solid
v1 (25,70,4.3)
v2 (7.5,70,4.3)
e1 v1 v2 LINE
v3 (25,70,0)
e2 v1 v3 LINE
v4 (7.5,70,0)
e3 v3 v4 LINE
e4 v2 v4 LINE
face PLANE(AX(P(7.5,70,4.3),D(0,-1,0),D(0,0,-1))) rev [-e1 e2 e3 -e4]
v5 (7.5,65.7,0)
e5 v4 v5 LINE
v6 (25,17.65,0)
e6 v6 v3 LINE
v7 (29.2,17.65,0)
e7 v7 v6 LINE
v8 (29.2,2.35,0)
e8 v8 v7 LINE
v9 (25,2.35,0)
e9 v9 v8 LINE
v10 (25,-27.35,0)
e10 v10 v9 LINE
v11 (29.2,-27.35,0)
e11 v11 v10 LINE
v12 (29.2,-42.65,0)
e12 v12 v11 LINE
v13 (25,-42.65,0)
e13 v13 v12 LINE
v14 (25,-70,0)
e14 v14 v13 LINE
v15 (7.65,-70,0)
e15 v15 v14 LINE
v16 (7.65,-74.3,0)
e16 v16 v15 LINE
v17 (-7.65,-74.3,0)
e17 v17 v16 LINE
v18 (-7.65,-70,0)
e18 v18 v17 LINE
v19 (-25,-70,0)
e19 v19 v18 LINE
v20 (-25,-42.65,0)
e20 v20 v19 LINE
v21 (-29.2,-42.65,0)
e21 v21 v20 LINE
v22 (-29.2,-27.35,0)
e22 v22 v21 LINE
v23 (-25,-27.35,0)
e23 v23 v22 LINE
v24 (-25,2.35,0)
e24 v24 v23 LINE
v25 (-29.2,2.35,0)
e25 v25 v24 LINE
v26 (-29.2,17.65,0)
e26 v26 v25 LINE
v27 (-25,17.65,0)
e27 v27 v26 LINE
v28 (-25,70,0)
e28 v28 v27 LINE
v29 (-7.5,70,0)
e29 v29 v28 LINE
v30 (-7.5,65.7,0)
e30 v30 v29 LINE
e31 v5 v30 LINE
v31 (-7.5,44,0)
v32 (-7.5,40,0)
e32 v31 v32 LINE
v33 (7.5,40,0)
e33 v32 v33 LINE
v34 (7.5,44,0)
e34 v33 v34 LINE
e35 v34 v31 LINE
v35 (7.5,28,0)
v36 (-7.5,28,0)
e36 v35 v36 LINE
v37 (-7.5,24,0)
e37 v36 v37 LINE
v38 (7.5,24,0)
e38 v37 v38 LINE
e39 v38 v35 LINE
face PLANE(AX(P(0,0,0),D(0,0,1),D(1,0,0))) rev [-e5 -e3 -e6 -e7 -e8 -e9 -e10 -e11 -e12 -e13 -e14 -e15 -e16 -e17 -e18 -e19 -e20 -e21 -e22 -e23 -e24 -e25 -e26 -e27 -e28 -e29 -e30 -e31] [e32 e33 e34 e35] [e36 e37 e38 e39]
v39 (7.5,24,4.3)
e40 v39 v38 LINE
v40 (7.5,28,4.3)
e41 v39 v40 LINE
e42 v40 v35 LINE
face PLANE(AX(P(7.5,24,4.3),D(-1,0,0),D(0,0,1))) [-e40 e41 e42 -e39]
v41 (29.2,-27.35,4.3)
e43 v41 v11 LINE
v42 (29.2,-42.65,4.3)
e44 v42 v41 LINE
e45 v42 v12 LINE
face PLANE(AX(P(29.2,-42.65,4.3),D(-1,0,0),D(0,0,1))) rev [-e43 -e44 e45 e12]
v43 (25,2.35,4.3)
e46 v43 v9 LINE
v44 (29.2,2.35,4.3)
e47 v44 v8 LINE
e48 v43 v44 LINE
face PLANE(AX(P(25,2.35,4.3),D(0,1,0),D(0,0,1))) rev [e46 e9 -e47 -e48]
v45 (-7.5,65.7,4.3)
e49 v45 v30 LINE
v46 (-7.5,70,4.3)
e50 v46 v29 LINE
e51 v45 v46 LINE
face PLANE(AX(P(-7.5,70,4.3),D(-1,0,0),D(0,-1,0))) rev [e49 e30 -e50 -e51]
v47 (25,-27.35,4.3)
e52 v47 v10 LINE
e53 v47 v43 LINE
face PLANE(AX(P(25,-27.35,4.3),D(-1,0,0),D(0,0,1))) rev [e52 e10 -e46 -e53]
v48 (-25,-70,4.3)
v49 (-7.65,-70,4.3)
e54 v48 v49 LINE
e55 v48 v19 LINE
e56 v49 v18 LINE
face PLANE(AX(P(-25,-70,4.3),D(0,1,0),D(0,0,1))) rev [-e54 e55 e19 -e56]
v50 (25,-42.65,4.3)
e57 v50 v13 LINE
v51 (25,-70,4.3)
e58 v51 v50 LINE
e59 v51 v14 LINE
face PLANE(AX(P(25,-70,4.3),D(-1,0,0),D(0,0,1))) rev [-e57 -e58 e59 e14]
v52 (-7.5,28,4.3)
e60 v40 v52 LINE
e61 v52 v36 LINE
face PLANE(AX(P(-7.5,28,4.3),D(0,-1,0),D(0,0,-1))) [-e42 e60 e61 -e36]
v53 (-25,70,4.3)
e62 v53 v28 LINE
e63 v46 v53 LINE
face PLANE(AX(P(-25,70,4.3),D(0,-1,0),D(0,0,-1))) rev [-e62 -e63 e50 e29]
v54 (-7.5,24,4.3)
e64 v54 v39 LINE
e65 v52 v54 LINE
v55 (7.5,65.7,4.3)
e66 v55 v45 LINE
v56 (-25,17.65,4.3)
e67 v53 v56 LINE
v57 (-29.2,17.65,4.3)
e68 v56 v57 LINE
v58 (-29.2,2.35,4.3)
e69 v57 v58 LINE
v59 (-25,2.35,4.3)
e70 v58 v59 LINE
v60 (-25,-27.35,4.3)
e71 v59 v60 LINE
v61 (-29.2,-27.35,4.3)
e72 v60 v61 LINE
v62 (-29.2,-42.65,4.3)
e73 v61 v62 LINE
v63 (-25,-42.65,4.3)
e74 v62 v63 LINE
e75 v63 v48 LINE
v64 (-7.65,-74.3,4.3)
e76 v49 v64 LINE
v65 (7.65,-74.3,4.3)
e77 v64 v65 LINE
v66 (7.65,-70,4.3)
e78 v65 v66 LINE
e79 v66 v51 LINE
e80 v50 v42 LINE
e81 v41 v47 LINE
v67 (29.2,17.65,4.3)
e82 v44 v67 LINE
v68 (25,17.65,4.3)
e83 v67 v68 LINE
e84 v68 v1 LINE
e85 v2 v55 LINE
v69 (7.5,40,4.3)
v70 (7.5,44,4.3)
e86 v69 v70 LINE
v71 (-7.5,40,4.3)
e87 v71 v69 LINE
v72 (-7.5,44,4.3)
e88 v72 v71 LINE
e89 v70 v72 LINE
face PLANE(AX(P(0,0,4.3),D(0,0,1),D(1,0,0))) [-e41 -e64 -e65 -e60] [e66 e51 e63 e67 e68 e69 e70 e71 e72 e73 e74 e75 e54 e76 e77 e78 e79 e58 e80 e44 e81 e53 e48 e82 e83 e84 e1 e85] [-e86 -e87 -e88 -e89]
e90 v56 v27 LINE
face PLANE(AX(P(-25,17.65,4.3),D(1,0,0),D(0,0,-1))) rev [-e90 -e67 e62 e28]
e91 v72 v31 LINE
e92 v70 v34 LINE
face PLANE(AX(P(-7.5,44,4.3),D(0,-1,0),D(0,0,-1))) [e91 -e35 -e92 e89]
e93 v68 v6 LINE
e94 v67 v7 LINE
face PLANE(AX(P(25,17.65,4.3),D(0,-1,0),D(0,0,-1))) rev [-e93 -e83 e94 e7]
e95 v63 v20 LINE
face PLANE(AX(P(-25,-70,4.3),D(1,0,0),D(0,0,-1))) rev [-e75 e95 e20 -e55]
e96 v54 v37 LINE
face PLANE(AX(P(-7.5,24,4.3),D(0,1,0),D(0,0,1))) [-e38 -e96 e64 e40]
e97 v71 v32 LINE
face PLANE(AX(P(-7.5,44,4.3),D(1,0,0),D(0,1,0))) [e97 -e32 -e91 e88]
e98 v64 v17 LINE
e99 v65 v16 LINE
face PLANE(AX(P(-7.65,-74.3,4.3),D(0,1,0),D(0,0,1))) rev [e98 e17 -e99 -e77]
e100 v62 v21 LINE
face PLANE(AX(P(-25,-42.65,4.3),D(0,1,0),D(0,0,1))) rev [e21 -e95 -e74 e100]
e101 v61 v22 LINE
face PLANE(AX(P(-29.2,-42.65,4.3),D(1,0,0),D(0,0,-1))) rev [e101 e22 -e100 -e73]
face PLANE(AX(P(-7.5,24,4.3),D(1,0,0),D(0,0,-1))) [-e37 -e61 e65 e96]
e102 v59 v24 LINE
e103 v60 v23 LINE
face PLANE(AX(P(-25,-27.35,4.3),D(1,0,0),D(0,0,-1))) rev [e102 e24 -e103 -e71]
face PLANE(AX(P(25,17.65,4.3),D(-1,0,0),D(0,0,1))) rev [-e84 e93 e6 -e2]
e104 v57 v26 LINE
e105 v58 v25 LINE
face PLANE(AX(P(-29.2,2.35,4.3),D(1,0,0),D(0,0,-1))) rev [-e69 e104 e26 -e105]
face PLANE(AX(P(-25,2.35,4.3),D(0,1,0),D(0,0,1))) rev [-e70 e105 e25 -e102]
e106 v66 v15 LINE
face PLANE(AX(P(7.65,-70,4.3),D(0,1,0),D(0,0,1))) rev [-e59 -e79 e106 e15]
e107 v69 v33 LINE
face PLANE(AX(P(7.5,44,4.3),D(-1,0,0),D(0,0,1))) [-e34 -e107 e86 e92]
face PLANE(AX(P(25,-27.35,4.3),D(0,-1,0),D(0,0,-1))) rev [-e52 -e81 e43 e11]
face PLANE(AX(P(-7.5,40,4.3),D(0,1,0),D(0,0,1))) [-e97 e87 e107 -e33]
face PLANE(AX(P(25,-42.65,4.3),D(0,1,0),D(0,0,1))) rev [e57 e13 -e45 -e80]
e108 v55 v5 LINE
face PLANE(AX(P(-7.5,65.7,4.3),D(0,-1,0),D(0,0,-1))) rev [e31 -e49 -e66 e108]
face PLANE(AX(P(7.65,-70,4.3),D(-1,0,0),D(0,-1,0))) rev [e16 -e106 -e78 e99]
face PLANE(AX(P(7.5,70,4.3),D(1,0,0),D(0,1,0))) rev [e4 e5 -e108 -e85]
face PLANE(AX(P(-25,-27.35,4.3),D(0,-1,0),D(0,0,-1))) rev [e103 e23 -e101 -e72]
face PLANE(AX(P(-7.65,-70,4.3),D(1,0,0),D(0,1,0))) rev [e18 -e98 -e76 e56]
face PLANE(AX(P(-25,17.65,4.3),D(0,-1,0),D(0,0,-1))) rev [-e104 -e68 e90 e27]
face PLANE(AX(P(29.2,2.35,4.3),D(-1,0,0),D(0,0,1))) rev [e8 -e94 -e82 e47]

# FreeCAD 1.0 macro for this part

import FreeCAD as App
import Part
import Sketcher
Q = App.Units.Quantity

doc = App.newDocument("Part")
params = doc.addObject("Spreadsheet::Sheet", "Params")
for row, (alias, value) in enumerate([
    ("sketch1_width", "15 mm"),
    ("sketch1_height", "4 mm"),
    ("sketch1_width2", "4.2 mm"),
    ("sketch1_width3", "17.5 mm"),
    ("sketch1_width4", "15.3 mm"),
    ("pad1_length", "4.3 mm"),
], start=1):
    params.set(f"A{row}", alias)
    params.set(f"B{row}", "=" + value)
    params.setAlias(f"B{row}", alias)

body = doc.addObject("PartDesign::Body", "Body")

# Sketch on XY plane
sketch1 = doc.addObject("Sketcher::SketchObject", "Sketch")
body.addObject(sketch1)
sketch1.AttachmentSupport = (doc.XY_Plane, [""])
sketch1.MapMode = "FlatFace"
sketch1.addGeometry(Part.LineSegment(App.Vector(25, -27.4, 0), App.Vector(25, 2.4, 0)), False)
sketch1.addGeometry(Part.LineSegment(App.Vector(25, 2.4, 0), App.Vector(29.2, 2.4, 0)), False)
sketch1.addGeometry(Part.LineSegment(App.Vector(29.2, 2.4, 0), App.Vector(29.2, 17.6, 0)), False)
sketch1.addGeometry(Part.LineSegment(App.Vector(29.2, 17.6, 0), App.Vector(25, 17.6, 0)), False)
sketch1.addGeometry(Part.LineSegment(App.Vector(25, 17.6, 0), App.Vector(25, 70, 0)), False)
sketch1.addGeometry(Part.LineSegment(App.Vector(25, 70, 0), App.Vector(7.5, 70, 0)), False)
sketch1.addGeometry(Part.LineSegment(App.Vector(7.5, 70, 0), App.Vector(7.5, 65.7, 0)), False)
sketch1.addGeometry(Part.LineSegment(App.Vector(7.5, 65.7, 0), App.Vector(-7.5, 65.7, 0)), False)
sketch1.addGeometry(Part.LineSegment(App.Vector(-7.5, 65.7, 0), App.Vector(-7.5, 70, 0)), False)
sketch1.addGeometry(Part.LineSegment(App.Vector(-7.5, 70, 0), App.Vector(-25, 70, 0)), False)
sketch1.addGeometry(Part.LineSegment(App.Vector(-25, 70, 0), App.Vector(-25, 17.6, 0)), False)
sketch1.addGeometry(Part.LineSegment(App.Vector(-25, 17.6, 0), App.Vector(-29.2, 17.6, 0)), False)
sketch1.addGeometry(Part.LineSegment(App.Vector(-29.2, 17.6, 0), App.Vector(-29.2, 2.4, 0)), False)
sketch1.addGeometry(Part.LineSegment(App.Vector(-29.2, 2.4, 0), App.Vector(-25, 2.4, 0)), False)
sketch1.addGeometry(Part.LineSegment(App.Vector(-25, 2.4, 0), App.Vector(-25, -27.4, 0)), False)
sketch1.addGeometry(Part.LineSegment(App.Vector(-25, -27.4, 0), App.Vector(-29.2, -27.4, 0)), False)
sketch1.addGeometry(Part.LineSegment(App.Vector(-29.2, -27.4, 0), App.Vector(-29.2, -42.6, 0)), False)
sketch1.addGeometry(Part.LineSegment(App.Vector(-29.2, -42.6, 0), App.Vector(-25, -42.6, 0)), False)
sketch1.addGeometry(Part.LineSegment(App.Vector(-25, -42.6, 0), App.Vector(-25, -70, 0)), False)
sketch1.addGeometry(Part.LineSegment(App.Vector(-25, -70, 0), App.Vector(-7.7, -70, 0)), False)
sketch1.addGeometry(Part.LineSegment(App.Vector(-7.7, -70, 0), App.Vector(-7.7, -74.3, 0)), False)
sketch1.addGeometry(Part.LineSegment(App.Vector(-7.7, -74.3, 0), App.Vector(7.7, -74.3, 0)), False)
sketch1.addGeometry(Part.LineSegment(App.Vector(7.7, -74.3, 0), App.Vector(7.7, -70, 0)), False)
sketch1.addGeometry(Part.LineSegment(App.Vector(7.7, -70, 0), App.Vector(25, -70, 0)), False)
sketch1.addGeometry(Part.LineSegment(App.Vector(25, -70, 0), App.Vector(25, -42.6, 0)), False)
sketch1.addGeometry(Part.LineSegment(App.Vector(25, -42.6, 0), App.Vector(29.2, -42.6, 0)), False)
sketch1.addGeometry(Part.LineSegment(App.Vector(29.2, -42.6, 0), App.Vector(29.2, -27.4, 0)), False)
sketch1.addGeometry(Part.LineSegment(App.Vector(29.2, -27.4, 0), App.Vector(25, -27.4, 0)), False)
sketch1.addGeometry(Part.LineSegment(App.Vector(7.5, 24, 0), App.Vector(-7.5, 24, 0)), False)
sketch1.addGeometry(Part.LineSegment(App.Vector(-7.5, 24, 0), App.Vector(-7.5, 28, 0)), False)
sketch1.addGeometry(Part.LineSegment(App.Vector(-7.5, 28, 0), App.Vector(7.5, 28, 0)), False)
sketch1.addGeometry(Part.LineSegment(App.Vector(7.5, 28, 0), App.Vector(7.5, 24, 0)), False)
sketch1.addGeometry(Part.LineSegment(App.Vector(7.5, 40, 0), App.Vector(-7.5, 40, 0)), False)
sketch1.addGeometry(Part.LineSegment(App.Vector(-7.5, 40, 0), App.Vector(-7.5, 44, 0)), False)
sketch1.addGeometry(Part.LineSegment(App.Vector(-7.5, 44, 0), App.Vector(7.5, 44, 0)), False)
sketch1.addGeometry(Part.LineSegment(App.Vector(7.5, 44, 0), App.Vector(7.5, 40, 0)), False)
sketch1.addConstraint(Sketcher.Constraint("Coincident", 0, 2, 1, 1))
sketch1.addConstraint(Sketcher.Constraint("Coincident", 1, 2, 2, 1))
sketch1.addConstraint(Sketcher.Constraint("Coincident", 2, 2, 3, 1))
sketch1.addConstraint(Sketcher.Constraint("Coincident", 3, 2, 4, 1))
sketch1.addConstraint(Sketcher.Constraint("Coincident", 4, 2, 5, 1))
sketch1.addConstraint(Sketcher.Constraint("Coincident", 5, 2, 6, 1))
sketch1.addConstraint(Sketcher.Constraint("Coincident", 6, 2, 7, 1))
sketch1.addConstraint(Sketcher.Constraint("Coincident", 7, 2, 8, 1))
sketch1.addConstraint(Sketcher.Constraint("Coincident", 8, 2, 9, 1))
sketch1.addConstraint(Sketcher.Constraint("Coincident", 9, 2, 10, 1))
sketch1.addConstraint(Sketcher.Constraint("Coincident", 10, 2, 11, 1))
sketch1.addConstraint(Sketcher.Constraint("Coincident", 11, 2, 12, 1))
sketch1.addConstraint(Sketcher.Constraint("Coincident", 12, 2, 13, 1))
sketch1.addConstraint(Sketcher.Constraint("Coincident", 13, 2, 14, 1))
sketch1.addConstraint(Sketcher.Constraint("Coincident", 14, 2, 15, 1))
sketch1.addConstraint(Sketcher.Constraint("Coincident", 15, 2, 16, 1))
sketch1.addConstraint(Sketcher.Constraint("Coincident", 16, 2, 17, 1))
sketch1.addConstraint(Sketcher.Constraint("Coincident", 17, 2, 18, 1))
sketch1.addConstraint(Sketcher.Constraint("Coincident", 18, 2, 19, 1))
sketch1.addConstraint(Sketcher.Constraint("Coincident", 19, 2, 20, 1))
sketch1.addConstraint(Sketcher.Constraint("Coincident", 20, 2, 21, 1))
sketch1.addConstraint(Sketcher.Constraint("Coincident", 21, 2, 22, 1))
sketch1.addConstraint(Sketcher.Constraint("Coincident", 22, 2, 23, 1))
sketch1.addConstraint(Sketcher.Constraint("Coincident", 23, 2, 24, 1))
sketch1.addConstraint(Sketcher.Constraint("Coincident", 24, 2, 25, 1))
sketch1.addConstraint(Sketcher.Constraint("Coincident", 25, 2, 26, 1))
sketch1.addConstraint(Sketcher.Constraint("Coincident", 26, 2, 27, 1))
sketch1.addConstraint(Sketcher.Constraint("Coincident", 27, 2, 0, 1))
sketch1.addConstraint(Sketcher.Constraint("Coincident", 28, 2, 29, 1))
sketch1.addConstraint(Sketcher.Constraint("Coincident", 29, 2, 30, 1))
sketch1.addConstraint(Sketcher.Constraint("Coincident", 30, 2, 31, 1))
sketch1.addConstraint(Sketcher.Constraint("Coincident", 31, 2, 28, 1))
sketch1.addConstraint(Sketcher.Constraint("Coincident", 32, 2, 33, 1))
sketch1.addConstraint(Sketcher.Constraint("Coincident", 33, 2, 34, 1))
sketch1.addConstraint(Sketcher.Constraint("Coincident", 34, 2, 35, 1))
sketch1.addConstraint(Sketcher.Constraint("Coincident", 35, 2, 32, 1))
sketch1.addConstraint(Sketcher.Constraint("Vertical", 0))
sketch1.addConstraint(Sketcher.Constraint("Horizontal", 1))
sketch1.addConstraint(Sketcher.Constraint("Vertical", 2))
sketch1.addConstraint(Sketcher.Constraint("Horizontal", 3))
sketch1.addConstraint(Sketcher.Constraint("Vertical", 4))
sketch1.addConstraint(Sketcher.Constraint("Horizontal", 5))
sketch1.addConstraint(Sketcher.Constraint("Vertical", 6))
sketch1.addConstraint(Sketcher.Constraint("Horizontal", 7))
sketch1.addConstraint(Sketcher.Constraint("Vertical", 8))
sketch1.addConstraint(Sketcher.Constraint("Horizontal", 9))
sketch1.addConstraint(Sketcher.Constraint("Vertical", 10))
sketch1.addConstraint(Sketcher.Constraint("Horizontal", 11))
sketch1.addConstraint(Sketcher.Constraint("Vertical", 12))
sketch1.addConstraint(Sketcher.Constraint("Horizontal", 13))
sketch1.addConstraint(Sketcher.Constraint("Vertical", 14))
sketch1.addConstraint(Sketcher.Constraint("Horizontal", 15))
sketch1.addConstraint(Sketcher.Constraint("Vertical", 16))
sketch1.addConstraint(Sketcher.Constraint("Horizontal", 17))
sketch1.addConstraint(Sketcher.Constraint("Vertical", 18))
sketch1.addConstraint(Sketcher.Constraint("Horizontal", 19))
sketch1.addConstraint(Sketcher.Constraint("Vertical", 20))
sketch1.addConstraint(Sketcher.Constraint("Horizontal", 21))
sketch1.addConstraint(Sketcher.Constraint("Vertical", 22))
sketch1.addConstraint(Sketcher.Constraint("Horizontal", 23))
sketch1.addConstraint(Sketcher.Constraint("Vertical", 24))
sketch1.addConstraint(Sketcher.Constraint("Horizontal", 25))
sketch1.addConstraint(Sketcher.Constraint("Vertical", 26))
sketch1.addConstraint(Sketcher.Constraint("Horizontal", 27))
sketch1.addConstraint(Sketcher.Constraint("Horizontal", 28))
sketch1.addConstraint(Sketcher.Constraint("Vertical", 29))
sketch1.addConstraint(Sketcher.Constraint("Horizontal", 30))
sketch1.addConstraint(Sketcher.Constraint("Vertical", 31))
sketch1.addConstraint(Sketcher.Constraint("Horizontal", 32))
sketch1.addConstraint(Sketcher.Constraint("Vertical", 33))
sketch1.addConstraint(Sketcher.Constraint("Horizontal", 34))
sketch1.addConstraint(Sketcher.Constraint("Vertical", 35))
sketch1.addConstraint(Sketcher.Constraint("Symmetric", 4, 2, 18, 2, -1, 1))
sketch1.addConstraint(Sketcher.Constraint("Symmetric", 9, 2, 23, 2, -1, 1))
sketch1.addConstraint(Sketcher.Constraint("Symmetric", 5, 2, 8, 2, -2))
sketch1.addConstraint(Sketcher.Constraint("Symmetric", 3, 2, 10, 2, -2))
sketch1.addConstraint(Sketcher.Constraint("Symmetric", 1, 2, 12, 2, -2))
sketch1.addConstraint(Sketcher.Constraint("Symmetric", 16, 2, 25, 2, -2))
sketch1.addConstraint(Sketcher.Constraint("Symmetric", 14, 2, 27, 2, -2))
sketch1.addConstraint(Sketcher.Constraint("Vertical", 0, 2, 3, 2))
sketch1.addConstraint(Sketcher.Constraint("Vertical", 12, 2, 15, 2))
sketch1.addConstraint(Sketcher.Constraint("Vertical", 8, 2, 28, 2))
sketch1.addConstraint(Sketcher.Constraint("Vertical", 6, 2, 30, 2))
sketch1.addConstraint(Sketcher.Constraint("Vertical", 29, 2, 32, 2))
sketch1.addConstraint(Sketcher.Constraint("Vertical", 31, 2, 34, 2))
sketch1.addConstraint(Sketcher.Constraint("Equal", 19, 23))
sketch1.addConstraint(Sketcher.Constraint("Equal", 21, 2))
sketch1.addConstraint(Sketcher.Constraint("Equal", 12, 16))
sketch1.addConstraint(Sketcher.Constraint("Equal", 8, 20))
sketch1.addConstraint(Sketcher.Constraint("Equal", 31, 33))
sketch1.addConstraint(Sketcher.Constraint("DistanceX", 7, 2, 7, 1, Q("15 mm")))
sketch1.addConstraint(Sketcher.Constraint("DistanceY", 29, 1, 29, 2, Q("4 mm")))
sketch1.addConstraint(Sketcher.Constraint("DistanceX", 1, 1, 1, 2, Q("4.2 mm")))
sketch1.addConstraint(Sketcher.Constraint("DistanceX", 5, 2, 5, 1, Q("17.5 mm")))
sketch1.addConstraint(Sketcher.Constraint("DistanceX", 21, 1, 21, 2, Q("15.3 mm")))
sketch1.addConstraint(Sketcher.Constraint("DistanceY", 0, 1, 0, 2, Q("29.7 mm")))
sketch1.addConstraint(Sketcher.Constraint("DistanceY", 6, 2, 6, 1, Q("4.3 mm")))
sketch1.addConstraint(Sketcher.Constraint("DistanceY", -1, 1, 4, 2, Q("70 mm")))
sketch1.addConstraint(Sketcher.Constraint("DistanceY", -1, 1, 28, 2, Q("24 mm")))
sketch1.addConstraint(Sketcher.Constraint("DistanceY", -1, 1, 32, 2, Q("40 mm")))
sketch1.addConstraint(Sketcher.Constraint("DistanceY", 4, 1, 4, 2, Q("52.35 mm")))
sketch1.setExpression("Constraints[90]", "Params.sketch1_width")
sketch1.setExpression("Constraints[91]", "Params.sketch1_height")
sketch1.setExpression("Constraints[92]", "Params.sketch1_width2")
sketch1.setExpression("Constraints[93]", "Params.sketch1_width3")
sketch1.setExpression("Constraints[94]", "Params.sketch1_width4")
pad1 = doc.addObject("PartDesign::Pad", "Pad")
body.addObject(pad1)
pad1.Profile = sketch1
pad1.setExpression("Length", "Params.pad1_length")

doc.recompute()
